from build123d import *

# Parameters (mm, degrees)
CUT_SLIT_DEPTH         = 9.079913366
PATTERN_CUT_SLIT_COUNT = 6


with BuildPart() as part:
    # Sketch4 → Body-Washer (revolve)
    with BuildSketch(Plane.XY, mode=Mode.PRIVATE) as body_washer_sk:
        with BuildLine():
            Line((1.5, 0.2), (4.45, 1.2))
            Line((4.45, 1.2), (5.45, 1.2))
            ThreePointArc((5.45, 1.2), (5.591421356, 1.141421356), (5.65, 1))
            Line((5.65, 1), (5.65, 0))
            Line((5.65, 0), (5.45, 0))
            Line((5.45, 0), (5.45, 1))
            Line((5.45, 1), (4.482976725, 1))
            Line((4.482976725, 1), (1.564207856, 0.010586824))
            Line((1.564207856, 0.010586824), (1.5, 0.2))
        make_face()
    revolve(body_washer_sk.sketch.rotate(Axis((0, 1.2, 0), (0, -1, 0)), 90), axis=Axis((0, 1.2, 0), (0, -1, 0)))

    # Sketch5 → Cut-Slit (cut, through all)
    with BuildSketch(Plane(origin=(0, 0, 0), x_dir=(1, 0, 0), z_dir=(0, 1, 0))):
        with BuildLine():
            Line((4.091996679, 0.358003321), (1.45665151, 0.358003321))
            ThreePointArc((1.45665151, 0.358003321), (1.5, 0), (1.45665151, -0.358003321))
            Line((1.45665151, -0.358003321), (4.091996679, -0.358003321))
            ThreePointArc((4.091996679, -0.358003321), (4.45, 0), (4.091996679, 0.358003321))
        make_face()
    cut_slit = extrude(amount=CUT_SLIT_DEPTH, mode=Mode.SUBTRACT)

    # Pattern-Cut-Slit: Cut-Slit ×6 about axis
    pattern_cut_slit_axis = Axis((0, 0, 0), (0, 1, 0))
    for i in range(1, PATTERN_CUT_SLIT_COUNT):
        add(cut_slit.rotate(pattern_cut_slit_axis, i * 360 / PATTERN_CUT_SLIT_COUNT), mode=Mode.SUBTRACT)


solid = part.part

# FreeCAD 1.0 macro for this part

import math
import FreeCAD as App
import Part
import Sketcher
Q = App.Units.Quantity

doc = App.newDocument("Part")
body = doc.addObject("PartDesign::Body", "Body")

# Sketch on XY plane
sketch1 = body.newObject("Sketcher::SketchObject", "Sketch")
sketch1.AttachmentSupport = (doc.getObject("XY_Plane"), [""])
sketch1.MapMode = "FlatFace"
sketch1.addGeometry(Part.LineSegment(App.Vector(4.45, 1.2, 0), App.Vector(1.5, 0.2, 0)), False)
sketch1.addGeometry(Part.LineSegment(App.Vector(1.5, 0.2, 0), App.Vector(1.56, 0.01, 0)), False)
sketch1.addGeometry(Part.LineSegment(App.Vector(1.56, 0.01, 0), App.Vector(4.48, 1, 0)), False)
sketch1.addGeometry(Part.LineSegment(App.Vector(4.48, 1, 0), App.Vector(5.45, 1, 0)), False)
sketch1.addGeometry(Part.LineSegment(App.Vector(5.45, 1, 0), App.Vector(5.45, 0, 0)), False)
sketch1.addGeometry(Part.LineSegment(App.Vector(5.45, 0, 0), App.Vector(5.65, 0, 0)), False)
sketch1.addGeometry(Part.LineSegment(App.Vector(5.65, 0, 0), App.Vector(5.65, 1, 0)), False)
sketch1.addGeometry(Part.ArcOfCircle(Part.Circle(App.Vector(5.45, 1, 0), App.Vector(0, 0, 1), 0.2), math.radians(0), math.radians(90)), False)
sketch1.addGeometry(Part.LineSegment(App.Vector(5.45, 1.2, 0), App.Vector(4.45, 1.2, 0)), False)
sketch1.addConstraint(Sketcher.Constraint("Coincident", 0, 2, 1, 1))
sketch1.addConstraint(Sketcher.Constraint("Coincident", 1, 2, 2, 1))
sketch1.addConstraint(Sketcher.Constraint("Coincident", 2, 2, 3, 1))
sketch1.addConstraint(Sketcher.Constraint("Coincident", 3, 2, 4, 1))
sketch1.addConstraint(Sketcher.Constraint("Coincident", 4, 2, 5, 1))
sketch1.addConstraint(Sketcher.Constraint("Coincident", 5, 2, 6, 1))
sketch1.addConstraint(Sketcher.Constraint("Tangent", 6, 2, 7, 1))
sketch1.addConstraint(Sketcher.Constraint("Tangent", 7, 2, 8, 1))
sketch1.addConstraint(Sketcher.Constraint("Coincident", 8, 2, 0, 1))
sketch1.addConstraint(Sketcher.Constraint("Horizontal", 3))
sketch1.addConstraint(Sketcher.Constraint("Vertical", 4))
sketch1.addConstraint(Sketcher.Constraint("Horizontal", 5))
sketch1.addConstraint(Sketcher.Constraint("Vertical", 6))
sketch1.addConstraint(Sketcher.Constraint("Horizontal", 8))
sketch1.addConstraint(Sketcher.Constraint("Coincident", 3, 2, 7, 3))
sketch1.addConstraint(Sketcher.Constraint("PointOnObject", 4, 2, -1))
sketch1.addConstraint(Sketcher.Constraint("Perpendicular", 0, 1))
sketch1.addConstraint(Sketcher.Constraint("Perpendicular", 1, 2))
sketch1.addConstraint(Sketcher.Constraint("Equal", 8, 4))
sketch1.addConstraint(Sketcher.Constraint("Radius", 7, Q("0.2 mm")))
sketch1.addConstraint(Sketcher.Constraint("DistanceX", 8, 2, 8, 1, Q("1 mm")))
sketch1.addConstraint(Sketcher.Constraint("Distance", 1, Q("0.2 mm")))
sketch1.addConstraint(Sketcher.Constraint("DistanceX", -1, 1, 0, 2, Q("1.5 mm")))
sketch1.addConstraint(Sketcher.Constraint("DistanceY", -1, 1, 0, 2, Q("0.2 mm")))
sketch1.addConstraint(Sketcher.Constraint("DistanceX", -1, 1, 7, 3, Q("5.45 mm")))
revolution = body.newObject("PartDesign::Revolution", "Revolution")
revolution.Profile = sketch1
revolution.ReferenceAxis = (sketch1, ["V_Axis"])
revolution.Angle = 360

# Sketch on XZ plane
sketch2 = body.newObject("Sketcher::SketchObject", "Sketch001")
sketch2.AttachmentSupport = (doc.getObject("XZ_Plane"), [""])
sketch2.MapMode = "FlatFace"
sketch2.addGeometry(Part.LineSegment(App.Vector(4.09, -0.36, 0), App.Vector(1.46, -0.36, 0)), False)
sketch2.addGeometry(Part.ArcOfCircle(Part.Circle(App.Vector(0, 0, 0), App.Vector(0, 0, 1), 1.5), math.radians(-14), math.radians(14)), False)
sketch2.addGeometry(Part.LineSegment(App.Vector(1.46, 0.36, 0), App.Vector(4.09, 0.36, 0)), False)
sketch2.addGeometry(Part.ArcOfCircle(Part.Circle(App.Vector(4.09, 0, 0), App.Vector(0, 0, 1), 0.36), math.radians(-90), math.radians(90)), False)
sketch2.addConstraint(Sketcher.Constraint("Coincident", 0, 2, 1, 1))
sketch2.addConstraint(Sketcher.Constraint("Coincident", 1, 2, 2, 1))
sketch2.addConstraint(Sketcher.Constraint("Tangent", 2, 2, 3, 2))
sketch2.addConstraint(Sketcher.Constraint("Tangent", 3, 1, 0, 1))
sketch2.addConstraint(Sketcher.Constraint("Horizontal", 0))
sketch2.addConstraint(Sketcher.Constraint("Horizontal", 2))
sketch2.addConstraint(Sketcher.Constraint("Coincident", 1, 3, -1, 1))
sketch2.addConstraint(Sketcher.Constraint("PointOnObject", 3, 3, -1))
sketch2.addConstraint(Sketcher.Constraint("Radius", 1, Q("1.5 mm")))
sketch2.addConstraint(Sketcher.Constraint("Radius", 3, Q("0.358003 mm")))
sketch2.addConstraint(Sketcher.Constraint("DistanceX", 0, 2, 0, 1, Q("2.635345 mm")))
pocket1 = body.newObject("PartDesign::Pocket", "Pocket")
pocket1.Profile = sketch2
pocket1.Type = "ThroughAll"
doc.recompute()

polarpattern = body.newObject("PartDesign::PolarPattern", "PolarPattern")
polarpattern.Originals = [pocket1]
polarpattern.Axis = (doc.getObject("Y_Axis"), [""])
polarpattern.Angle = 360
polarpattern.Occurrences = 6
body.Tip = polarpattern

doc.recompute()
